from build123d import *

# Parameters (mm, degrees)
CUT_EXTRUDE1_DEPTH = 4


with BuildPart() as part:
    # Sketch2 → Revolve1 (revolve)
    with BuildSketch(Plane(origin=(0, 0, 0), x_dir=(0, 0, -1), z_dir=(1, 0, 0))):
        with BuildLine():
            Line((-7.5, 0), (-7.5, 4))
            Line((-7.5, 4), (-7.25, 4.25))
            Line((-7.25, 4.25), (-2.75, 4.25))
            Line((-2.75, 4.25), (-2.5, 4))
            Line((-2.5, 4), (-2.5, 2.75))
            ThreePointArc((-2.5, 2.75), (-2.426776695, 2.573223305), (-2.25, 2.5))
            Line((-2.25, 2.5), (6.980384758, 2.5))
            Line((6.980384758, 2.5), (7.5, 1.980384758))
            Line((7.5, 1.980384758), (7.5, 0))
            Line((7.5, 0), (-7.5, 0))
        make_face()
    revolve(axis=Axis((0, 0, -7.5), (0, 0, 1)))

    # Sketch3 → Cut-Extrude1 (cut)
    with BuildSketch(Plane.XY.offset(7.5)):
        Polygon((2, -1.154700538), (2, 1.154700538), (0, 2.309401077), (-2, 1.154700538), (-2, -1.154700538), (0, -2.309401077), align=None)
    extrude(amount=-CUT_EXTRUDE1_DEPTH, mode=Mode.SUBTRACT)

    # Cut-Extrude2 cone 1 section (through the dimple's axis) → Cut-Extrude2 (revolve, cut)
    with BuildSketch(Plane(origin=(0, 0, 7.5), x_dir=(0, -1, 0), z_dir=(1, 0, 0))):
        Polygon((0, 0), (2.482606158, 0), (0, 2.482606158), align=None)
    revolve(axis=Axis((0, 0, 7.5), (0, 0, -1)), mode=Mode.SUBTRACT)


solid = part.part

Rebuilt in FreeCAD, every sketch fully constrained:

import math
import FreeCAD as App
import Part
import Sketcher
Q = App.Units.Quantity

doc = App.newDocument("Part")
body = doc.addObject("PartDesign::Body", "Body")

sketch1 = body.newObject("Sketcher::SketchObject", "Sketch")
sketch1.AttachmentSupport = (doc.getObject("YZ_Plane"), [""])
sketch1.MapMode = "FlatFace"
sketch1.addGeometry(Part.LineSegment(App.Vector(4, 7.5, 0), App.Vector(0, 7.5, 0)), False)
sketch1.addGeometry(Part.LineSegment(App.Vector(0, 7.5, 0), App.Vector(0, -7.5, 0)), False)
sketch1.addGeometry(Part.LineSegment(App.Vector(0, -7.5, 0), App.Vector(1.98, -7.5, 0)), False)
sketch1.addGeometry(Part.LineSegment(App.Vector(1.98, -7.5, 0), App.Vector(2.5, -6.98, 0)), False)
sketch1.addGeometry(Part.LineSegment(App.Vector(2.5, -6.98, 0), App.Vector(2.5, 2.25, 0)), False)
sketch1.addGeometry(Part.ArcOfCircle(Part.Circle(App.Vector(2.75, 2.25, 0), App.Vector(0, 0, 1), 0.25), math.radians(90), math.radians(180)), False)
sketch1.addGeometry(Part.LineSegment(App.Vector(2.75, 2.5, 0), App.Vector(4, 2.5, 0)), False)
sketch1.addGeometry(Part.LineSegment(App.Vector(4, 2.5, 0), App.Vector(4.25, 2.75, 0)), False)
sketch1.addGeometry(Part.LineSegment(App.Vector(4.25, 2.75, 0), App.Vector(4.25, 7.25, 0)), False)
sketch1.addGeometry(Part.LineSegment(App.Vector(4.25, 7.25, 0), App.Vector(4, 7.5, 0)), False)
sketch1.addConstraint(Sketcher.Constraint("Coincident", 0, 2, 1, 1))
sketch1.addConstraint(Sketcher.Constraint("Coincident", 1, 2, 2, 1))
sketch1.addConstraint(Sketcher.Constraint("Coincident", 2, 2, 3, 1))
sketch1.addConstraint(Sketcher.Constraint("Coincident", 3, 2, 4, 1))
sketch1.addConstraint(Sketcher.Constraint("Tangent", 4, 2, 5, 2))
sketch1.addConstraint(Sketcher.Constraint("Tangent", 5, 1, 6, 1))
sketch1.addConstraint(Sketcher.Constraint("Coincident", 6, 2, 7, 1))
sketch1.addConstraint(Sketcher.Constraint("Coincident", 7, 2, 8, 1))
sketch1.addConstraint(Sketcher.Constraint("Coincident", 8, 2, 9, 1))
sketch1.addConstraint(Sketcher.Constraint("Coincident", 9, 2, 0, 1))
sketch1.addConstraint(Sketcher.Constraint("Horizontal", 0))
sketch1.addConstraint(Sketcher.Constraint("Vertical", 1))
sketch1.addConstraint(Sketcher.Constraint("Horizontal", 2))
sketch1.addConstraint(Sketcher.Constraint("Vertical", 4))
sketch1.addConstraint(Sketcher.Constraint("Horizontal", 6))
sketch1.addConstraint(Sketcher.Constraint("Vertical", 8))
sketch1.addConstraint(Sketcher.Constraint("Symmetric", 0, 2, 1, 2, -1, 1))
sketch1.addConstraint(Sketcher.Constraint("Parallel", 3, 7))
sketch1.addConstraint(Sketcher.Constraint("Perpendicular", 7, 9))
sketch1.addConstraint(Sketcher.Constraint("Vertical", 6, 2, 9, 2))
sketch1.addConstraint(Sketcher.Constraint("Equal", 7, 9))
sketch1.addConstraint(Sketcher.Constraint("DistanceX", 0, 2, 0, 1, Q("4 mm")))
sketch1.addConstraint(Sketcher.Constraint("DistanceY", 1, 2, 1, 1, Q("15 mm")))
sketch1.addConstraint(Sketcher.Constraint("Radius", 5, Q("0.25 mm")))
sketch1.addConstraint(Sketcher.Constraint("DistanceY", 8, 1, 8, 2, Q("4.5 mm")))
sketch1.addConstraint(Sketcher.Constraint("DistanceY", 5, 1, 0, 2, Q("5 mm")))
sketch1.addConstraint(Sketcher.Constraint("DistanceX", 6, 1, 6, 2, Q("1.25 mm")))
sketch1.addConstraint(Sketcher.Constraint("DistanceX", 2, 1, 2, 2, Q("1.980385 mm")))
revolution = body.newObject("PartDesign::Revolution", "Revolution")
revolution.Profile = sketch1
revolution.ReferenceAxis = (sketch1, ["V_Axis"])
revolution.Angle = 360

sketch2 = body.newObject("Sketcher::SketchObject", "Sketch001")
sketch2.AttachmentSupport = (doc.getObject("XY_Plane"), [""])
sketch2.MapMode = "FlatFace"
sketch2.AttachmentOffset = App.Placement(App.Vector(0, 0, 7.5), App.Rotation())
sketch2.addGeometry(Part.LineSegment(App.Vector(2, -1.2, 0), App.Vector(2, 1.2, 0)), False)
sketch2.addGeometry(Part.LineSegment(App.Vector(2, 1.2, 0), App.Vector(0, 2.3, 0)), False)
sketch2.addGeometry(Part.LineSegment(App.Vector(0, 2.3, 0), App.Vector(-2, 1.2, 0)), False)
sketch2.addGeometry(Part.LineSegment(App.Vector(-2, 1.2, 0), App.Vector(-2, -1.2, 0)), False)
sketch2.addGeometry(Part.LineSegment(App.Vector(-2, -1.2, 0), App.Vector(0, -2.3, 0)), False)
sketch2.addGeometry(Part.LineSegment(App.Vector(0, -2.3, 0), App.Vector(2, -1.2, 0)), False)
sketch2.addConstraint(Sketcher.Constraint("Coincident", 0, 2, 1, 1))
sketch2.addConstraint(Sketcher.Constraint("Coincident", 1, 2, 2, 1))
sketch2.addConstraint(Sketcher.Constraint("Coincident", 2, 2, 3, 1))
sketch2.addConstraint(Sketcher.Constraint("Coincident", 3, 2, 4, 1))
sketch2.addConstraint(Sketcher.Constraint("Coincident", 4, 2, 5, 1))
sketch2.addConstraint(Sketcher.Constraint("Coincident", 5, 2, 0, 1))
sketch2.addConstraint(Sketcher.Constraint("Vertical", 0))
sketch2.addConstraint(Sketcher.Constraint("Vertical", 3))
sketch2.addConstraint(Sketcher.Constraint("Symmetric", 0, 2, 3, 2, -1, 1))
sketch2.addConstraint(Sketcher.Constraint("Symmetric", 1, 2, 4, 2, -1, 1))
sketch2.addConstraint(Sketcher.Constraint("PointOnObject", 1, 2, -2))
sketch2.addConstraint(Sketcher.Constraint("Parallel", 2, 5))
sketch2.addConstraint(Sketcher.Constraint("Horizontal", 0, 2, 2, 2))
sketch2.addConstraint(Sketcher.Constraint("Angle", 1, Q("150 deg")))
sketch2.addConstraint(Sketcher.Constraint("DistanceX", -1, 1, 0, 2, Q("2 mm")))
sketch2.addConstraint(Sketcher.Constraint("DistanceY", 0, 1, 0, 2, Q("2.309401 mm")))
pocket1 = body.newObject("PartDesign::Pocket", "Pocket")
pocket1.Profile = sketch2
pocket1.Length = 4

sketch3 = body.newObject("Sketcher::SketchObject", "Sketch002")
sketch3.AttachmentSupport = (doc.getObject("YZ_Plane"), [""])
sketch3.MapMode = "FlatFace"
sketch3.addGeometry(Part.LineSegment(App.Vector(0, 7.5, 0), App.Vector(-2.5, 7.5, 0)), False)
sketch3.addGeometry(Part.LineSegment(App.Vector(-2.5, 7.5, 0), App.Vector(0, 5, 0)), False)
sketch3.addGeometry(Part.LineSegment(App.Vector(0, 5, 0), App.Vector(0, 7.5, 0)), False)
sketch3.addConstraint(Sketcher.Constraint("Coincident", 0, 2, 1, 1))
sketch3.addConstraint(Sketcher.Constraint("Coincident", 1, 2, 2, 1))
sketch3.addConstraint(Sketcher.Constraint("Coincident", 2, 2, 0, 1))
sketch3.addConstraint(Sketcher.Constraint("Horizontal", 0))
sketch3.addConstraint(Sketcher.Constraint("Vertical", 2))
sketch3.addConstraint(Sketcher.Constraint("PointOnObject", 1, 2, -2))
sketch3.addConstraint(Sketcher.Constraint("Equal", 0, 2))
sketch3.addConstraint(Sketcher.Constraint("DistanceY", -1, 1, 0, 2, Q("7.5 mm")))
sketch3.addConstraint(Sketcher.Constraint("DistanceX", 0, 2, 0, 1, Q("2.482606 mm")))
groove = body.newObject("PartDesign::Groove", "Groove")
groove.Profile = sketch3
groove.ReferenceAxis = (sketch3, ["V_Axis"])
groove.Angle = 360

doc.recompute()
